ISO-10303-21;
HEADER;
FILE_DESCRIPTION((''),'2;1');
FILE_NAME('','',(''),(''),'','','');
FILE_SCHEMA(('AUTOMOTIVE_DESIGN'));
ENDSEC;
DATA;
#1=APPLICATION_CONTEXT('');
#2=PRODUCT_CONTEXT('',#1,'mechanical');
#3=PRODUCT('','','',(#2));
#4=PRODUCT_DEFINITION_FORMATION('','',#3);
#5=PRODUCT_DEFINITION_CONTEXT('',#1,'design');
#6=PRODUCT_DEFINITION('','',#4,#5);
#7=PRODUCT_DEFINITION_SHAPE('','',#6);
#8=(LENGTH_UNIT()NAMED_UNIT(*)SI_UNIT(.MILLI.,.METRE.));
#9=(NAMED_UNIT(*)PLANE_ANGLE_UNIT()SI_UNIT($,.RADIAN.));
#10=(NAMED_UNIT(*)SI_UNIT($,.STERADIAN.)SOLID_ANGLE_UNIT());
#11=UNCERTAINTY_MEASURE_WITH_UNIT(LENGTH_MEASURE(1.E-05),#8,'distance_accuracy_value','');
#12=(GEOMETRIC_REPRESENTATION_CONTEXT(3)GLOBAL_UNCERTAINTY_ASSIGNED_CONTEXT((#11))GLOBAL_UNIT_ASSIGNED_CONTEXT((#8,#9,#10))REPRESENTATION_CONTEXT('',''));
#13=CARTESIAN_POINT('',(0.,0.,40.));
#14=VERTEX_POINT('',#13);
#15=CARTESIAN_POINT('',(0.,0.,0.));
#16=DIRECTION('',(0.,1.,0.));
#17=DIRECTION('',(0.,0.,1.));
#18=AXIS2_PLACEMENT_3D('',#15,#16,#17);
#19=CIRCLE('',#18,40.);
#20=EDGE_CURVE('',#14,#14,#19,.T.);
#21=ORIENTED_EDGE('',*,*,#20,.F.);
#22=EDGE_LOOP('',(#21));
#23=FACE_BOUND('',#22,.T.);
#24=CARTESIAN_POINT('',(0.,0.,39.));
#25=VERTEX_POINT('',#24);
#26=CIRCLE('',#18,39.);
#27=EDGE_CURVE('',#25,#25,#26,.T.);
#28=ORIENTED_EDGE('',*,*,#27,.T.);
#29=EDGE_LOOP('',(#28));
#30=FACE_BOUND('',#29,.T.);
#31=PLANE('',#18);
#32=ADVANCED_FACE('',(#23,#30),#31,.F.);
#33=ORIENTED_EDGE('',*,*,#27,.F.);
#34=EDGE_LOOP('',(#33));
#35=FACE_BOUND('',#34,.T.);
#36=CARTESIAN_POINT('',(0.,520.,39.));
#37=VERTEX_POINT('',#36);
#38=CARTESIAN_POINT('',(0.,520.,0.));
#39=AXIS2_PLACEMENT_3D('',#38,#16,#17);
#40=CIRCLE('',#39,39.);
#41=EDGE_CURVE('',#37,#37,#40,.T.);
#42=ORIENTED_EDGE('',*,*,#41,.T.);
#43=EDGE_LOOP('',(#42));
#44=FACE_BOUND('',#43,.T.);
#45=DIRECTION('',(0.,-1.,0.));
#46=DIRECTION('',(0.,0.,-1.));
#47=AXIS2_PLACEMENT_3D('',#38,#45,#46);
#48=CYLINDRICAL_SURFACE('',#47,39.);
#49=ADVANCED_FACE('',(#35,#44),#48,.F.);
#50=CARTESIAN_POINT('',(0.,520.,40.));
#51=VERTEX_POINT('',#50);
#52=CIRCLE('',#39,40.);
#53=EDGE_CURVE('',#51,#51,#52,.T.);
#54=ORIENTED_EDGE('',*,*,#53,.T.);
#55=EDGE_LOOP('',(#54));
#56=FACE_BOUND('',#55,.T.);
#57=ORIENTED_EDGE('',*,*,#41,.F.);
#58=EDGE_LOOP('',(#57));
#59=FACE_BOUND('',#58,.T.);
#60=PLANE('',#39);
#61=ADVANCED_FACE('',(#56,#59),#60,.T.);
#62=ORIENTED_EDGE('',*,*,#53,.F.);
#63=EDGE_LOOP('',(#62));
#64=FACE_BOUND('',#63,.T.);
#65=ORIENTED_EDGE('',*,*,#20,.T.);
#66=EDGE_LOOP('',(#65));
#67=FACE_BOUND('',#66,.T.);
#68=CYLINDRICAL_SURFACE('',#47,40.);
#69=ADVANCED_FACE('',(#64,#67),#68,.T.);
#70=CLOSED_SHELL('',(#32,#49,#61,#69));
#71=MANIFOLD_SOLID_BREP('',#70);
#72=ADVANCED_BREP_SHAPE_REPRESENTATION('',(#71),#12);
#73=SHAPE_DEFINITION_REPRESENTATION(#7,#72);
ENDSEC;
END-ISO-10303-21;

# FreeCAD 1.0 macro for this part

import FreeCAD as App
import Part
import Sketcher

V = App.Vector

doc = App.newDocument("Part")
body = doc.addObject("PartDesign::Body", "Body")

# Sketch on XZ plane
sketch1 = body.newObject("Sketcher::SketchObject", "Sketch")
sketch1.AttachmentSupport = (doc.getObject("XZ_Plane"), [""])
sketch1.MapMode = "FlatFace"
sketch1.addGeometry([
    Part.Circle(V(0, 0, 0), V(0, 0, 1), 40),
    Part.Circle(V(0, 0, 0), V(0, 0, 1), 39),
], False)
sketch1.addConstraint([
    Sketcher.Constraint("Coincident", 0, 3, -1, 1),
    Sketcher.Constraint("Coincident", 1, 3, -1, 1),
    Sketcher.Constraint("Diameter", 0, 80.0),
    Sketcher.Constraint("Diameter", 1, 78.0),
])
pad1 = body.newObject("PartDesign::Pad", "Pad")
pad1.Profile = sketch1
pad1.Length = 520
pad1.Reversed = True

doc.recompute()
